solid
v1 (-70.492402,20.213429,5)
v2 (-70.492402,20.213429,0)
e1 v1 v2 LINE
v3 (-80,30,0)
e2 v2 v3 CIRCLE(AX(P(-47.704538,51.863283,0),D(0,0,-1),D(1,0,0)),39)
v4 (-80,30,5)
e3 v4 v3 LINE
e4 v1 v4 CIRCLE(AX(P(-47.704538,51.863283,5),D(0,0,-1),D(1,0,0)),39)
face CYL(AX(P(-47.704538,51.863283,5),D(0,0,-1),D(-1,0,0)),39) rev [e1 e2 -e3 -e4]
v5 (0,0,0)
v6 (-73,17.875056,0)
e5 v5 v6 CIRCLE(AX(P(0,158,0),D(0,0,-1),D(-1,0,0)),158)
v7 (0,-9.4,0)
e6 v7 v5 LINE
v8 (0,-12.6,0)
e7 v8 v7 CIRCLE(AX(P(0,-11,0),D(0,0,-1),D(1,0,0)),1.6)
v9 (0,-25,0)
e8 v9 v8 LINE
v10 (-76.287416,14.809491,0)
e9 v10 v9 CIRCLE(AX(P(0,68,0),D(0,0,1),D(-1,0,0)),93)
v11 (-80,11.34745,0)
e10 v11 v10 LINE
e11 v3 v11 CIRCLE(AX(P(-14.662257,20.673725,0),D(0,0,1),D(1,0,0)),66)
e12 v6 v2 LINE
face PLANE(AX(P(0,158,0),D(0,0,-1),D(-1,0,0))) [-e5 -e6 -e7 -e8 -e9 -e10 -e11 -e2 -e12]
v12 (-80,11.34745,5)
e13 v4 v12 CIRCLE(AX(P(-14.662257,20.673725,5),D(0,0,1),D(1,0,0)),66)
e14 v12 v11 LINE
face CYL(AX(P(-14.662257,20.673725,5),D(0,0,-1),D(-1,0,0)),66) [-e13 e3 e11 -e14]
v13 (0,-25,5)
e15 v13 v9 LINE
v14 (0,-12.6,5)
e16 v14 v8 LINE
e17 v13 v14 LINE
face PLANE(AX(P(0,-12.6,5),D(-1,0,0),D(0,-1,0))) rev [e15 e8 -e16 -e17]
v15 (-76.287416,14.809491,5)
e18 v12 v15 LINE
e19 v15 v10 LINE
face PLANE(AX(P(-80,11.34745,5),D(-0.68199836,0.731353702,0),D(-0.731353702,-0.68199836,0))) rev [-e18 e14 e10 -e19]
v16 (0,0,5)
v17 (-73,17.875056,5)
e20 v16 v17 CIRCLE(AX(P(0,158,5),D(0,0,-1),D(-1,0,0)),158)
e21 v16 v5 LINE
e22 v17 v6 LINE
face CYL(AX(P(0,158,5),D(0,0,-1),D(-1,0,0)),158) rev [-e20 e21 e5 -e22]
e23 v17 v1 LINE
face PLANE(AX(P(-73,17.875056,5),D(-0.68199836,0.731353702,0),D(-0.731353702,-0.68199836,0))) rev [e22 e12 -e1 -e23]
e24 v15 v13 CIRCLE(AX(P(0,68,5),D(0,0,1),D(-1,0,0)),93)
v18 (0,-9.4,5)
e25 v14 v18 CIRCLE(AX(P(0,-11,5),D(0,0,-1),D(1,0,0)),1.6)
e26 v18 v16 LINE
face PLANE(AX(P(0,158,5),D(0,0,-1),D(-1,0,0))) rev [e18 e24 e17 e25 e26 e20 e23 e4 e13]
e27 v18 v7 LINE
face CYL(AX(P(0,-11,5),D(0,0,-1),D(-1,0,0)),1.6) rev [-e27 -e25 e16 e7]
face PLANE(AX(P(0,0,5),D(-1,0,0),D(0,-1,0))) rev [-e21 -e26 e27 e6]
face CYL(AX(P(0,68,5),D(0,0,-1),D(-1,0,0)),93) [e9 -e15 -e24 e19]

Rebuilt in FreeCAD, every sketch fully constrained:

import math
import FreeCAD as App
import Part
import Sketcher
from FreeCAD import Vector
Q = App.Units.Quantity

doc = App.newDocument("Part")
body = doc.addObject("PartDesign::Body", "Body")

sketch1 = body.newObject("Sketcher::SketchObject", "Sketch")
sketch1.AttachmentSupport = (doc.getObject("XY_Plane"), [""])
sketch1.MapMode = "FlatFace"
sketch1.addGeometry([
    Part.LineSegment(Vector(-80, 11.3, 0), Vector(-76.3, 14.8, 0)),
    Part.ArcOfCircle(Part.Circle(Vector(0, 68, 0), Vector(0, 0, 1), 93), math.radians(-145), math.radians(-90)),
    Part.LineSegment(Vector(0, -25, 0), Vector(0, -12.6, 0)),
    Part.ArcOfCircle(Part.Circle(Vector(0, -11, 0), Vector(0, 0, 1), 1.6), math.radians(90), math.radians(270)),
    Part.LineSegment(Vector(0, -9.4, 0), Vector(0, 0, 0)),
    Part.ArcOfCircle(Part.Circle(Vector(0, 158, 0), Vector(0, 0, 1), 158), math.radians(-118), math.radians(-90)),
    Part.LineSegment(Vector(-73, 17.9, 0), Vector(-70.5, 20.2, 0)),
    Part.ArcOfCircle(Part.Circle(Vector(-47.7, 51.9, 0), Vector(0, 0, 1), 39), math.radians(-146), math.radians(-126)),
    Part.ArcOfCircle(Part.Circle(Vector(-14.7, 20.7, 0), Vector(0, 0, 1), 66), math.radians(171.88), math.radians(188.12)),
], False)
sketch1.addConstraint([
    Sketcher.Constraint("Coincident", 0, 2, 1, 1),
    Sketcher.Constraint("Coincident", 1, 2, 2, 1),
    Sketcher.Constraint("Coincident", 2, 2, 3, 2),
    Sketcher.Constraint("Coincident", 3, 1, 4, 1),
    Sketcher.Constraint("Coincident", 4, 2, 5, 2),
    Sketcher.Constraint("Coincident", 5, 1, 6, 1),
    Sketcher.Constraint("Coincident", 6, 2, 7, 2),
    Sketcher.Constraint("Coincident", 7, 1, 8, 1),
    Sketcher.Constraint("Coincident", 8, 2, 0, 1),
    Sketcher.Constraint("Vertical", 2),
    Sketcher.Constraint("Vertical", 4),
    Sketcher.Constraint("Coincident", 4, 2, -1, 1),
    Sketcher.Constraint("PointOnObject", 1, 3, -2),
    Sketcher.Constraint("PointOnObject", 3, 3, -2),
    Sketcher.Constraint("PointOnObject", 5, 3, -2),
    Sketcher.Constraint("PointOnObject", 1, 2, -2),
    Sketcher.Constraint("Parallel", 0, 6),
    Sketcher.Constraint("Vertical", 7, 1, 8, 2),
    Sketcher.Constraint("Radius", 1, 93.0),
    Sketcher.Constraint("Radius", 5, 158.0),
    Sketcher.Constraint("Radius", 7, 39.0),
    Sketcher.Constraint("Radius", 8, 66.0),
    Sketcher.Constraint("Radius", 3, 1.6),
    Sketcher.Constraint("Angle", 0, Q("43 deg")),
    Sketcher.Constraint("DistanceY", 2, 1, 2, 2, 12.4),
    Sketcher.Constraint("DistanceY", 4, 1, 4, 2, 9.4),
    Sketcher.Constraint("DistanceX", 5, 1, -1, 1, 73.0),
    Sketcher.Constraint("DistanceX", 7, 1, -1, 1, 80.0),
    Sketcher.Constraint("DistanceY", -1, 1, 7, 1, 30.0),
    Sketcher.Constraint("DistanceX", 6, 2, -1, 1, 70.492402),
    Sketcher.Constraint("Distance", 0, 5.076319),
])
pad1 = body.newObject("PartDesign::Pad", "Pad")
pad1.Profile = sketch1
pad1.Length = 5

doc.recompute()
